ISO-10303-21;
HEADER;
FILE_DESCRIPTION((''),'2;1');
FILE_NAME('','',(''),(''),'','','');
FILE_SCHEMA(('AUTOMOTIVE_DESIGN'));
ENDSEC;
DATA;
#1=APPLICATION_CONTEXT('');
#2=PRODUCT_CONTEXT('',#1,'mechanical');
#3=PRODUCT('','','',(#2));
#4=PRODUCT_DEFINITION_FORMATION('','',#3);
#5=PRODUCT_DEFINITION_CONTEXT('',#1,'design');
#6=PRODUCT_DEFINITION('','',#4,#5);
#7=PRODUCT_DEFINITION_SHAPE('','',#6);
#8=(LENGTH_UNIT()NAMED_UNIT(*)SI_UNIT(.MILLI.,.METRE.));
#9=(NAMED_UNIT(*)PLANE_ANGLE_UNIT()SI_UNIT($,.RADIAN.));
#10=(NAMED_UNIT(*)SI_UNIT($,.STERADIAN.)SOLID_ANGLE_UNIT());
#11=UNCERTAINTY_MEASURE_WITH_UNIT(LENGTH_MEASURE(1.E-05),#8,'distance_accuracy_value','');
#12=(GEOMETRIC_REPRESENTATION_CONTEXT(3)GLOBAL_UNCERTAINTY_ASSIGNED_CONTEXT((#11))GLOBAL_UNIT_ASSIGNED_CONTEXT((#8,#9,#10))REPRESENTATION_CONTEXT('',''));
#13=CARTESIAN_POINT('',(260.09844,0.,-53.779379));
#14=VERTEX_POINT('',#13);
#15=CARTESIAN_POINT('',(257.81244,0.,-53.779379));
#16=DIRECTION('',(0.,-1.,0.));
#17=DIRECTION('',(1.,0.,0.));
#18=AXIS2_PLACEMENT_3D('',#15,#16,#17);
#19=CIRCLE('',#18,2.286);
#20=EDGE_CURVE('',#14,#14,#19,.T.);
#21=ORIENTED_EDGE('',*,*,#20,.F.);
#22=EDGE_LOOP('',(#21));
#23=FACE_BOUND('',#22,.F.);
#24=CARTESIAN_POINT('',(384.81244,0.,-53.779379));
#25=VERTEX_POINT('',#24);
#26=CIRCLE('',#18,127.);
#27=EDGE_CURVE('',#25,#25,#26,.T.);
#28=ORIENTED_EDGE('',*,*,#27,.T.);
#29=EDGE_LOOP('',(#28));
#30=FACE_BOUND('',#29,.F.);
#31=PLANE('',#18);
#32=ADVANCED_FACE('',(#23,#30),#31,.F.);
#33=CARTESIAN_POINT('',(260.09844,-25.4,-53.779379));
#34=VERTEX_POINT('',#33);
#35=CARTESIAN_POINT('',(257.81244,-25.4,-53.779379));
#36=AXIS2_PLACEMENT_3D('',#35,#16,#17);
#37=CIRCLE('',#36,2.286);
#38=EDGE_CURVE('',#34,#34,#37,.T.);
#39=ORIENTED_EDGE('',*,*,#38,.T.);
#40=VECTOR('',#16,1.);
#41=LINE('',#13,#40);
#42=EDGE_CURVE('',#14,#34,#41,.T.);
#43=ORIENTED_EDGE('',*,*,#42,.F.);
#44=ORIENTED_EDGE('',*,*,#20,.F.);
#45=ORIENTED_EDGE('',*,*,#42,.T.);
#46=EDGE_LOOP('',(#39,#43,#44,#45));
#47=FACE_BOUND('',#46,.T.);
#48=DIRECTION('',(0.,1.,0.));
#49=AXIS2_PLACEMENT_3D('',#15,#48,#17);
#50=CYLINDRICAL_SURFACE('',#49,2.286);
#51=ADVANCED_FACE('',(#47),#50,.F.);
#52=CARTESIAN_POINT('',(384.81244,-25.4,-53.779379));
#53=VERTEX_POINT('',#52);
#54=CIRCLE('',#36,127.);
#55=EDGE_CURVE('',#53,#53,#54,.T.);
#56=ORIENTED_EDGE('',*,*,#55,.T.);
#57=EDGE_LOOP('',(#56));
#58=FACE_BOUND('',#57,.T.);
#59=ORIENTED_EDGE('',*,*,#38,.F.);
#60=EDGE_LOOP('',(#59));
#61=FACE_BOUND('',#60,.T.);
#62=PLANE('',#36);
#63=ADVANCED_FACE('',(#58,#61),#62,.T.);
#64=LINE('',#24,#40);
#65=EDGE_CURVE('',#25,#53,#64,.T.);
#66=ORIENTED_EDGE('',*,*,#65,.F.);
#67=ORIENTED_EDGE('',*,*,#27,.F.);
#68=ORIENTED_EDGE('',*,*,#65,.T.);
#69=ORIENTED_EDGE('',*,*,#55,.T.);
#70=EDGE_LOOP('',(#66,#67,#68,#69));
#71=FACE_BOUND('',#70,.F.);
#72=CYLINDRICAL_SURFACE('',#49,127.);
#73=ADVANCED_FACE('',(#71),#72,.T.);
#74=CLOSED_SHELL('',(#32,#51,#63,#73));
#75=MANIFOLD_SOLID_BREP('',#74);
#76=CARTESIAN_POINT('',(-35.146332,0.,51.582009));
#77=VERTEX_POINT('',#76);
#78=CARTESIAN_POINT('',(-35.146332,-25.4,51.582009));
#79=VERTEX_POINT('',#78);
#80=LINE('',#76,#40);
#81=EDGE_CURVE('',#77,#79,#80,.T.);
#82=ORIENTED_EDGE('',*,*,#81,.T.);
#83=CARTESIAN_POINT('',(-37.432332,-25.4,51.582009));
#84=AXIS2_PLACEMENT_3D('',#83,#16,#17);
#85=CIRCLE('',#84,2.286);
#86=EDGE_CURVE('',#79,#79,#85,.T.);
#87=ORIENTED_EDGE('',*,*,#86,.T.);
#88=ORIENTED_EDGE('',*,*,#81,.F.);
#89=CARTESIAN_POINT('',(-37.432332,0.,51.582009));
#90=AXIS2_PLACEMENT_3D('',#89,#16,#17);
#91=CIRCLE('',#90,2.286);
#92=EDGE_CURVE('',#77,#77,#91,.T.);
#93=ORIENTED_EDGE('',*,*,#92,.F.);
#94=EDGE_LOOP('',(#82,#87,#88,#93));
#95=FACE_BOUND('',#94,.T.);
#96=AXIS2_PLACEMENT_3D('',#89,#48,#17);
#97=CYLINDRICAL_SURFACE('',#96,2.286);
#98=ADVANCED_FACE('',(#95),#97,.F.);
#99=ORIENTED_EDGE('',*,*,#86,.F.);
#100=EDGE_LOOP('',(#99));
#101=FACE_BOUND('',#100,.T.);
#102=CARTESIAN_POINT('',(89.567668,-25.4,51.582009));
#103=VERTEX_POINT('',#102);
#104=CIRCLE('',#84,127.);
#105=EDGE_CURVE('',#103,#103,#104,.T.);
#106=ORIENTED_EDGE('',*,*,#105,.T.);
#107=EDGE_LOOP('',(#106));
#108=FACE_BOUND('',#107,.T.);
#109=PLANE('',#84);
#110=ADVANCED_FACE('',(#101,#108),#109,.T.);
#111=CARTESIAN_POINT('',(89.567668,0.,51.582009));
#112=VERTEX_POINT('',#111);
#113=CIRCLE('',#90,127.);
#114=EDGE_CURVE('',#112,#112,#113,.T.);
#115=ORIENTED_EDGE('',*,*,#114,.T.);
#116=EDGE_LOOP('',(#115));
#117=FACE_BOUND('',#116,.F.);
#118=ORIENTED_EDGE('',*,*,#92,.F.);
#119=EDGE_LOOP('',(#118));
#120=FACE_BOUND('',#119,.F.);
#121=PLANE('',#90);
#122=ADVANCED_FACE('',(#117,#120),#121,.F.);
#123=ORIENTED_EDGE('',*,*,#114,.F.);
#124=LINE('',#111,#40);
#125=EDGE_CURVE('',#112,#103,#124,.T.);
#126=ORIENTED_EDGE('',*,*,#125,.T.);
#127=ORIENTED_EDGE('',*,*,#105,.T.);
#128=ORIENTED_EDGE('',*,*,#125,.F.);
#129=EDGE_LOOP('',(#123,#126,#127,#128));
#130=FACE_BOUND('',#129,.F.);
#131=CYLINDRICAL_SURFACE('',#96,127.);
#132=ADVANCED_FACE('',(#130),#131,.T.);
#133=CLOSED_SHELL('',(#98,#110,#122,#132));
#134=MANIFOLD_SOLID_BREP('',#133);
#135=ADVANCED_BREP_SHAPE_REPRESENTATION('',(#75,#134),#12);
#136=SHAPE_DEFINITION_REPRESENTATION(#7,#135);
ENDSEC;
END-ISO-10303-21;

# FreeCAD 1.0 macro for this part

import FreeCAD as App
import Part
import Sketcher
from FreeCAD import Vector
Q = App.Units.Quantity

doc = App.newDocument("Part")
params = doc.addObject("Spreadsheet::Sheet", "Params")
for row, (alias, value) in enumerate([
    ("sketch1_diameter", "10 in"),
    ("sketch1_diameter2", "0.18 in"),
    ("pad1_length", "1 in"),
], start=1):
    params.set(f"A{row}", alias)
    params.set(f"B{row}", "=" + value)
    params.setAlias(f"B{row}", alias)

body = doc.addObject("PartDesign::Body", "Body")
body.AllowCompound = True

# Sketch on XZ plane
sketch1 = body.newObject("Sketcher::SketchObject", "Sketch")
sketch1.AttachmentSupport = (doc.getObject("XZ_Plane"), [""])
sketch1.MapMode = "FlatFace"
sketch1.addGeometry([
    Part.Circle(Vector(-37.4, 51.6, 0), Vector(0, 0, 1), 127),
    Part.Circle(Vector(-37.4, 51.6, 0), Vector(0, 0, 1), 2.3),
    Part.Circle(Vector(257.8, -53.8, 0), Vector(0, 0, 1), 127),
    Part.Circle(Vector(257.8, -53.8, 0), Vector(0, 0, 1), 2.3),
], False)
sketch1.addConstraint([
    Sketcher.Constraint("Coincident", 1, 3, 0, 3),
    Sketcher.Constraint("Coincident", 3, 3, 2, 3),
    Sketcher.Constraint("Equal", 0, 2),
    Sketcher.Constraint("Equal", 1, 3),
    Sketcher.Constraint("Diameter", 0, Q("10 in")),
    Sketcher.Constraint("Diameter", 1, Q("0.18 in")),
    Sketcher.Constraint("DistanceY", -1, 1, 0, 3, Q("51.582009 mm")),
    Sketcher.Constraint("DistanceX", -1, 1, 2, 3, Q("257.81244 mm")),
    Sketcher.Constraint("DistanceY", 2, 3, -1, 1, Q("53.779379 mm")),
    Sketcher.Constraint("DistanceX", 0, 3, 2, 3, Q("295.244772 mm")),
])
sketch1.setExpression("Constraints[4]", "Params.sketch1_diameter")
sketch1.setExpression("Constraints[5]", "Params.sketch1_diameter2")
pad1 = body.newObject("PartDesign::Pad", "Pad")
pad1.Profile = sketch1
pad1.setExpression("Length", "Params.pad1_length")

doc.recompute()
